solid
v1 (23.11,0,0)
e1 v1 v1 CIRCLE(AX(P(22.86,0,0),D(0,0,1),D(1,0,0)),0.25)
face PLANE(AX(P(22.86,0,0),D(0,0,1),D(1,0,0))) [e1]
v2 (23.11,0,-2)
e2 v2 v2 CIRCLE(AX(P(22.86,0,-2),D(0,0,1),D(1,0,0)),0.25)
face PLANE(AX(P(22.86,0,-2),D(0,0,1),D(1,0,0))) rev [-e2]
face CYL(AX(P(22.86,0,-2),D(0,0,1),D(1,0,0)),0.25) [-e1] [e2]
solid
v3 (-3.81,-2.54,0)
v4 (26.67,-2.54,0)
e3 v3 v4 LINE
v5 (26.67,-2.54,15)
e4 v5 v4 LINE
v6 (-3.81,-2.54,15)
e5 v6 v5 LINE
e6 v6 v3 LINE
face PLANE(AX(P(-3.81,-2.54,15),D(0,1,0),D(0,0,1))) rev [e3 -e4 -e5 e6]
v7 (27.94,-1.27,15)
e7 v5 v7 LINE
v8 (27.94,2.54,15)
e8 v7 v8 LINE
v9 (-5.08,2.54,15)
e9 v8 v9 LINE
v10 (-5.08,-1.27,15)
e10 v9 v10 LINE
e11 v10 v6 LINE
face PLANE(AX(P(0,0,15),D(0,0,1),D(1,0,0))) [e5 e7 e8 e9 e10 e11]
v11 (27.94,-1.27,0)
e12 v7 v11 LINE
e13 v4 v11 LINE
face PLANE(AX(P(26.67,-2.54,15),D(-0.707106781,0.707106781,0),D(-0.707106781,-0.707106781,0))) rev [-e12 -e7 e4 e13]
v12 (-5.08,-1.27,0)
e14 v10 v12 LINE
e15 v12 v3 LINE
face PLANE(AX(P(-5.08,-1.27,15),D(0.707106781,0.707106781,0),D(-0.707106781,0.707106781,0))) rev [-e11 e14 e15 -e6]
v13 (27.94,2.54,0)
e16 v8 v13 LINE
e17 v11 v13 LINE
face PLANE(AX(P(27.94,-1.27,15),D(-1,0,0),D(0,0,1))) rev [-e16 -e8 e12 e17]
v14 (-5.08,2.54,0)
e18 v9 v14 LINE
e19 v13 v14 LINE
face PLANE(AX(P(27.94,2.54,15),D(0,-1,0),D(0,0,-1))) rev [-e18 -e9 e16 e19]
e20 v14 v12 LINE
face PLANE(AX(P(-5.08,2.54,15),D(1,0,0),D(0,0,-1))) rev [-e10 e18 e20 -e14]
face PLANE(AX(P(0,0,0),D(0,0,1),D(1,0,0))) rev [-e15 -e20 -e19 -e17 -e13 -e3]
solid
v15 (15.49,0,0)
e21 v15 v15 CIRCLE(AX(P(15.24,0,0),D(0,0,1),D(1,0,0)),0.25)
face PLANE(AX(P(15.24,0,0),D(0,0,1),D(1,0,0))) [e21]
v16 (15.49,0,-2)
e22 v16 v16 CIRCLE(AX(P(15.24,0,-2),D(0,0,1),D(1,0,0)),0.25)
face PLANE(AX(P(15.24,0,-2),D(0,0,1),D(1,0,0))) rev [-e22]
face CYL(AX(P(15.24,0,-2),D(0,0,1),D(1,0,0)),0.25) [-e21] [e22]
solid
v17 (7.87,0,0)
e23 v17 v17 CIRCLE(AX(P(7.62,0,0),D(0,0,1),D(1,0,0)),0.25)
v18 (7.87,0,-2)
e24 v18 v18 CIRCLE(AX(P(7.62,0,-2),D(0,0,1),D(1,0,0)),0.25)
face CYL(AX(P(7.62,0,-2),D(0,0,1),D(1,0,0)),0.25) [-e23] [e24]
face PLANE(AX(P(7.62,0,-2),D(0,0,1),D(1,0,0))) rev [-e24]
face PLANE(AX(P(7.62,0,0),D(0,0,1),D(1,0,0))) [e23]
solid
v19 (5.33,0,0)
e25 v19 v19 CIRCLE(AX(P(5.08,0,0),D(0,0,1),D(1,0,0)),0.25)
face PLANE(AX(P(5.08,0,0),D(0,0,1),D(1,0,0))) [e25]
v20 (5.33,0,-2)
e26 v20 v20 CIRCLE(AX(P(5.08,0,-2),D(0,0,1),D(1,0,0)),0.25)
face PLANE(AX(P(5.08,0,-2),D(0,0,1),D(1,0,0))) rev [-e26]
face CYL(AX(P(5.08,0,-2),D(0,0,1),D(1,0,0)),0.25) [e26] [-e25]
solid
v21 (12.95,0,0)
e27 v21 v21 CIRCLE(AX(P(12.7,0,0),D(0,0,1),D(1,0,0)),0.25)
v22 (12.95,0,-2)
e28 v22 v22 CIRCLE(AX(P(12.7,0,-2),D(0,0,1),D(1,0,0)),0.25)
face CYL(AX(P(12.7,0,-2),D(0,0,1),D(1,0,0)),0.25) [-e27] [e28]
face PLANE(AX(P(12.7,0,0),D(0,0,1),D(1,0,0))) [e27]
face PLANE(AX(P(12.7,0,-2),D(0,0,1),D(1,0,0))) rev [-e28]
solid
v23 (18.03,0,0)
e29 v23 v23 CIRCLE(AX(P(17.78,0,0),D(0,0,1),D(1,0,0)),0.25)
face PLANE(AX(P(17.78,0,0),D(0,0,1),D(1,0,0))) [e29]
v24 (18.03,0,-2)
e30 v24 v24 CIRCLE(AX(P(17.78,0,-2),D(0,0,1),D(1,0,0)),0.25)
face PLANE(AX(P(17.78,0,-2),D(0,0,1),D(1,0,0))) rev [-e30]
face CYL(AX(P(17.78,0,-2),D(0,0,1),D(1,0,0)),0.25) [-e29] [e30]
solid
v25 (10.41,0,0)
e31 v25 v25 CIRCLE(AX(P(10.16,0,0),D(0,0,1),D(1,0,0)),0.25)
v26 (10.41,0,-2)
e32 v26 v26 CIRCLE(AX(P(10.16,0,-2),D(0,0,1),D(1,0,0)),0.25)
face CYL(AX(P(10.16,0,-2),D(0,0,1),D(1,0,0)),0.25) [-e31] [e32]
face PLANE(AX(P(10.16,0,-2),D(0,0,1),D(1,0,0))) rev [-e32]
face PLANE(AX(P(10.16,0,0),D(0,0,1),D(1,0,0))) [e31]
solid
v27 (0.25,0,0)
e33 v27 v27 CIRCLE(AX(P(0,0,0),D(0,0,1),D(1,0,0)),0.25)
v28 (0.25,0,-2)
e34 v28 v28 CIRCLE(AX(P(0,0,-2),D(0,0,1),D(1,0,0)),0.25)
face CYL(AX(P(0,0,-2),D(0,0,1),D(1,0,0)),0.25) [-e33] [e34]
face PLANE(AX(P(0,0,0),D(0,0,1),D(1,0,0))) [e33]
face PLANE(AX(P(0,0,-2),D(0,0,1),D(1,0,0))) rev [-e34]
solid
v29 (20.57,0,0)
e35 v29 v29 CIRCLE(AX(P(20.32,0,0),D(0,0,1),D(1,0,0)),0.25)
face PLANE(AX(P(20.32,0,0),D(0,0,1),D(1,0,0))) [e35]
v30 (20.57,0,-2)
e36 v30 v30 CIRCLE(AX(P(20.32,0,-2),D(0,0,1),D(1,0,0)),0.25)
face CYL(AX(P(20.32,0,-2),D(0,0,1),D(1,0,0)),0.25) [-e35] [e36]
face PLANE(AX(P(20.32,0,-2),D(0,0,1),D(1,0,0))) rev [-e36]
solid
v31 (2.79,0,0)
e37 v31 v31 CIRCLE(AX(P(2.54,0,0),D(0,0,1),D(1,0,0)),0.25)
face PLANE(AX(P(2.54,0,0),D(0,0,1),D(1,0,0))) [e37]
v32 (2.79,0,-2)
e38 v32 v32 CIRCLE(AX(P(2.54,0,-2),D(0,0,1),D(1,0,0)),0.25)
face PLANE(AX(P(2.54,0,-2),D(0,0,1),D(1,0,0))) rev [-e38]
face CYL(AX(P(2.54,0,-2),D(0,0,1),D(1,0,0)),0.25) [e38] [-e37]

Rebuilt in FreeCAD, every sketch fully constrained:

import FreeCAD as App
import Part
import Sketcher
from FreeCAD import Vector

doc = App.newDocument("Part")
body = doc.addObject("PartDesign::Body", "Body")

sketch1 = body.newObject("Sketcher::SketchObject", "Sketch")
sketch1.AttachmentSupport = (doc.getObject("XY_Plane"), [""])
sketch1.MapMode = "FlatFace"
sketch1.addGeometry([
    Part.LineSegment(Vector(-5.1, 2.5, 0), Vector(-5.1, -1.3, 0)),
    Part.LineSegment(Vector(-5.1, -1.3, 0), Vector(-3.8, -2.5, 0)),
    Part.LineSegment(Vector(-3.8, -2.5, 0), Vector(26.7, -2.5, 0)),
    Part.LineSegment(Vector(26.7, -2.5, 0), Vector(27.9, -1.3, 0)),
    Part.LineSegment(Vector(27.9, -1.3, 0), Vector(27.9, 2.5, 0)),
    Part.LineSegment(Vector(27.9, 2.5, 0), Vector(-5.1, 2.5, 0)),
], False)
sketch1.addConstraint([
    Sketcher.Constraint("Coincident", 0, 2, 1, 1),
    Sketcher.Constraint("Coincident", 1, 2, 2, 1),
    Sketcher.Constraint("Coincident", 2, 2, 3, 1),
    Sketcher.Constraint("Coincident", 3, 2, 4, 1),
    Sketcher.Constraint("Coincident", 4, 2, 5, 1),
    Sketcher.Constraint("Coincident", 5, 2, 0, 1),
    Sketcher.Constraint("Vertical", 0),
    Sketcher.Constraint("Horizontal", 2),
    Sketcher.Constraint("Vertical", 4),
    Sketcher.Constraint("Horizontal", 5),
    Sketcher.Constraint("Perpendicular", 1, 3),
    Sketcher.Constraint("Horizontal", 0, 2, 3, 2),
    Sketcher.Constraint("Equal", 1, 3),
    Sketcher.Constraint("DistanceX", 2, 1, 2, 2, 30.48),
    Sketcher.Constraint("DistanceX", 5, 2, 5, 1, 33.02),
    Sketcher.Constraint("DistanceY", 0, 2, 0, 1, 3.81),
    Sketcher.Constraint("DistanceX", 0, 2, -1, 1, 5.08),
    Sketcher.Constraint("DistanceY", 0, 2, -1, 1, 1.27),
])
pad1 = body.newObject("PartDesign::Pad", "Pad")
pad1.Profile = sketch1
pad1.Length = 15
body2 = doc.addObject("PartDesign::Body", "Body001")

sketch2 = body2.newObject("Sketcher::SketchObject", "Sketch001")
sketch2.AttachmentSupport = (doc.getObject("XY_Plane001"), [""])
sketch2.MapMode = "FlatFace"
sketch2.addGeometry(Part.Circle(Vector(0, 0, 0), Vector(0, 0, 1), 0.25), False)
sketch2.addConstraint([
    Sketcher.Constraint("Coincident", 0, 3, -1, 1),
    Sketcher.Constraint("Diameter", 0, 0.5),
])
pad2 = body2.newObject("PartDesign::Pad", "Pad001")
pad2.Profile = sketch2
pad2.Length = 2
pad2.Reversed = True
body3 = doc.addObject("PartDesign::Body", "Body002")

sketch3 = body3.newObject("Sketcher::SketchObject", "Sketch002")
sketch3.AttachmentSupport = (doc.getObject("XY_Plane002"), [""])
sketch3.MapMode = "FlatFace"
sketch3.addGeometry(Part.Circle(Vector(2.54, 0, 0), Vector(0, 0, 1), 0.25), False)
sketch3.addConstraint([
    Sketcher.Constraint("PointOnObject", 0, 3, -1),
    Sketcher.Constraint("Diameter", 0, 0.5),
    Sketcher.Constraint("DistanceX", -1, 1, 0, 3, 2.54),
])
pad3 = body3.newObject("PartDesign::Pad", "Pad002")
pad3.Profile = sketch3
pad3.Length = 2
pad3.Reversed = True
body4 = doc.addObject("PartDesign::Body", "Body003")

sketch4 = body4.newObject("Sketcher::SketchObject", "Sketch003")
sketch4.AttachmentSupport = (doc.getObject("XY_Plane003"), [""])
sketch4.MapMode = "FlatFace"
sketch4.addGeometry(Part.Circle(Vector(5.08, 0, 0), Vector(0, 0, 1), 0.25), False)
sketch4.addConstraint([
    Sketcher.Constraint("PointOnObject", 0, 3, -1),
    Sketcher.Constraint("Diameter", 0, 0.5),
    Sketcher.Constraint("DistanceX", -1, 1, 0, 3, 5.08),
])
pad4 = body4.newObject("PartDesign::Pad", "Pad003")
pad4.Profile = sketch4
pad4.Length = 2
pad4.Reversed = True
body5 = doc.addObject("PartDesign::Body", "Body004")

sketch5 = body5.newObject("Sketcher::SketchObject", "Sketch004")
sketch5.AttachmentSupport = (doc.getObject("XY_Plane004"), [""])
sketch5.MapMode = "FlatFace"
sketch5.addGeometry(Part.Circle(Vector(7.62, 0, 0), Vector(0, 0, 1), 0.25), False)
sketch5.addConstraint([
    Sketcher.Constraint("PointOnObject", 0, 3, -1),
    Sketcher.Constraint("Diameter", 0, 0.5),
    Sketcher.Constraint("DistanceX", -1, 1, 0, 3, 7.62),
])
pad5 = body5.newObject("PartDesign::Pad", "Pad004")
pad5.Profile = sketch5
pad5.Length = 2
pad5.Reversed = True
body6 = doc.addObject("PartDesign::Body", "Body005")

sketch6 = body6.newObject("Sketcher::SketchObject", "Sketch005")
sketch6.AttachmentSupport = (doc.getObject("XY_Plane005"), [""])
sketch6.MapMode = "FlatFace"
sketch6.addGeometry(Part.Circle(Vector(10.16, 0, 0), Vector(0, 0, 1), 0.25), False)
sketch6.addConstraint([
    Sketcher.Constraint("PointOnObject", 0, 3, -1),
    Sketcher.Constraint("Diameter", 0, 0.5),
    Sketcher.Constraint("DistanceX", -1, 1, 0, 3, 10.16),
])
pad6 = body6.newObject("PartDesign::Pad", "Pad005")
pad6.Profile = sketch6
pad6.Length = 2
pad6.Reversed = True
body7 = doc.addObject("PartDesign::Body", "Body006")

sketch7 = body7.newObject("Sketcher::SketchObject", "Sketch006")
sketch7.AttachmentSupport = (doc.getObject("XY_Plane006"), [""])
sketch7.MapMode = "FlatFace"
sketch7.addGeometry(Part.Circle(Vector(12.7, 0, 0), Vector(0, 0, 1), 0.25), False)
sketch7.addConstraint([
    Sketcher.Constraint("PointOnObject", 0, 3, -1),
    Sketcher.Constraint("Diameter", 0, 0.5),
    Sketcher.Constraint("DistanceX", -1, 1, 0, 3, 12.7),
])
pad7 = body7.newObject("PartDesign::Pad", "Pad006")
pad7.Profile = sketch7
pad7.Length = 2
pad7.Reversed = True
body8 = doc.addObject("PartDesign::Body", "Body007")

sketch8 = body8.newObject("Sketcher::SketchObject", "Sketch007")
sketch8.AttachmentSupport = (doc.getObject("XY_Plane007"), [""])
sketch8.MapMode = "FlatFace"
sketch8.addGeometry(Part.Circle(Vector(15.24, 0, 0), Vector(0, 0, 1), 0.25), False)
sketch8.addConstraint([
    Sketcher.Constraint("PointOnObject", 0, 3, -1),
    Sketcher.Constraint("Diameter", 0, 0.5),
    Sketcher.Constraint("DistanceX", -1, 1, 0, 3, 15.24),
])
pad8 = body8.newObject("PartDesign::Pad", "Pad007")
pad8.Profile = sketch8
pad8.Length = 2
pad8.Reversed = True
body9 = doc.addObject("PartDesign::Body", "Body008")

sketch9 = body9.newObject("Sketcher::SketchObject", "Sketch008")
sketch9.AttachmentSupport = (doc.getObject("XY_Plane008"), [""])
sketch9.MapMode = "FlatFace"
sketch9.addGeometry(Part.Circle(Vector(17.78, 0, 0), Vector(0, 0, 1), 0.25), False)
sketch9.addConstraint([
    Sketcher.Constraint("PointOnObject", 0, 3, -1),
    Sketcher.Constraint("Diameter", 0, 0.5),
    Sketcher.Constraint("DistanceX", -1, 1, 0, 3, 17.78),
])
pad9 = body9.newObject("PartDesign::Pad", "Pad008")
pad9.Profile = sketch9
pad9.Length = 2
pad9.Reversed = True
body10 = doc.addObject("PartDesign::Body", "Body009")

sketch10 = body10.newObject("Sketcher::SketchObject", "Sketch009")
sketch10.AttachmentSupport = (doc.getObject("XY_Plane009"), [""])
sketch10.MapMode = "FlatFace"
sketch10.addGeometry(Part.Circle(Vector(20.32, 0, 0), Vector(0, 0, 1), 0.25), False)
sketch10.addConstraint([
    Sketcher.Constraint("PointOnObject", 0, 3, -1),
    Sketcher.Constraint("Diameter", 0, 0.5),
    Sketcher.Constraint("DistanceX", -1, 1, 0, 3, 20.32),
])
pad10 = body10.newObject("PartDesign::Pad", "Pad009")
pad10.Profile = sketch10
pad10.Length = 2
pad10.Reversed = True
body11 = doc.addObject("PartDesign::Body", "Body010")

sketch11 = body11.newObject("Sketcher::SketchObject", "Sketch010")
sketch11.AttachmentSupport = (doc.getObject("XY_Plane010"), [""])
sketch11.MapMode = "FlatFace"
sketch11.addGeometry(Part.Circle(Vector(22.86, 0, 0), Vector(0, 0, 1), 0.25), False)
sketch11.addConstraint([
    Sketcher.Constraint("PointOnObject", 0, 3, -1),
    Sketcher.Constraint("Diameter", 0, 0.5),
    Sketcher.Constraint("DistanceX", -1, 1, 0, 3, 22.86),
])
pad11 = body11.newObject("PartDesign::Pad", "Pad010")
pad11.Profile = sketch11
pad11.Length = 2
pad11.Reversed = True

doc.recompute()
